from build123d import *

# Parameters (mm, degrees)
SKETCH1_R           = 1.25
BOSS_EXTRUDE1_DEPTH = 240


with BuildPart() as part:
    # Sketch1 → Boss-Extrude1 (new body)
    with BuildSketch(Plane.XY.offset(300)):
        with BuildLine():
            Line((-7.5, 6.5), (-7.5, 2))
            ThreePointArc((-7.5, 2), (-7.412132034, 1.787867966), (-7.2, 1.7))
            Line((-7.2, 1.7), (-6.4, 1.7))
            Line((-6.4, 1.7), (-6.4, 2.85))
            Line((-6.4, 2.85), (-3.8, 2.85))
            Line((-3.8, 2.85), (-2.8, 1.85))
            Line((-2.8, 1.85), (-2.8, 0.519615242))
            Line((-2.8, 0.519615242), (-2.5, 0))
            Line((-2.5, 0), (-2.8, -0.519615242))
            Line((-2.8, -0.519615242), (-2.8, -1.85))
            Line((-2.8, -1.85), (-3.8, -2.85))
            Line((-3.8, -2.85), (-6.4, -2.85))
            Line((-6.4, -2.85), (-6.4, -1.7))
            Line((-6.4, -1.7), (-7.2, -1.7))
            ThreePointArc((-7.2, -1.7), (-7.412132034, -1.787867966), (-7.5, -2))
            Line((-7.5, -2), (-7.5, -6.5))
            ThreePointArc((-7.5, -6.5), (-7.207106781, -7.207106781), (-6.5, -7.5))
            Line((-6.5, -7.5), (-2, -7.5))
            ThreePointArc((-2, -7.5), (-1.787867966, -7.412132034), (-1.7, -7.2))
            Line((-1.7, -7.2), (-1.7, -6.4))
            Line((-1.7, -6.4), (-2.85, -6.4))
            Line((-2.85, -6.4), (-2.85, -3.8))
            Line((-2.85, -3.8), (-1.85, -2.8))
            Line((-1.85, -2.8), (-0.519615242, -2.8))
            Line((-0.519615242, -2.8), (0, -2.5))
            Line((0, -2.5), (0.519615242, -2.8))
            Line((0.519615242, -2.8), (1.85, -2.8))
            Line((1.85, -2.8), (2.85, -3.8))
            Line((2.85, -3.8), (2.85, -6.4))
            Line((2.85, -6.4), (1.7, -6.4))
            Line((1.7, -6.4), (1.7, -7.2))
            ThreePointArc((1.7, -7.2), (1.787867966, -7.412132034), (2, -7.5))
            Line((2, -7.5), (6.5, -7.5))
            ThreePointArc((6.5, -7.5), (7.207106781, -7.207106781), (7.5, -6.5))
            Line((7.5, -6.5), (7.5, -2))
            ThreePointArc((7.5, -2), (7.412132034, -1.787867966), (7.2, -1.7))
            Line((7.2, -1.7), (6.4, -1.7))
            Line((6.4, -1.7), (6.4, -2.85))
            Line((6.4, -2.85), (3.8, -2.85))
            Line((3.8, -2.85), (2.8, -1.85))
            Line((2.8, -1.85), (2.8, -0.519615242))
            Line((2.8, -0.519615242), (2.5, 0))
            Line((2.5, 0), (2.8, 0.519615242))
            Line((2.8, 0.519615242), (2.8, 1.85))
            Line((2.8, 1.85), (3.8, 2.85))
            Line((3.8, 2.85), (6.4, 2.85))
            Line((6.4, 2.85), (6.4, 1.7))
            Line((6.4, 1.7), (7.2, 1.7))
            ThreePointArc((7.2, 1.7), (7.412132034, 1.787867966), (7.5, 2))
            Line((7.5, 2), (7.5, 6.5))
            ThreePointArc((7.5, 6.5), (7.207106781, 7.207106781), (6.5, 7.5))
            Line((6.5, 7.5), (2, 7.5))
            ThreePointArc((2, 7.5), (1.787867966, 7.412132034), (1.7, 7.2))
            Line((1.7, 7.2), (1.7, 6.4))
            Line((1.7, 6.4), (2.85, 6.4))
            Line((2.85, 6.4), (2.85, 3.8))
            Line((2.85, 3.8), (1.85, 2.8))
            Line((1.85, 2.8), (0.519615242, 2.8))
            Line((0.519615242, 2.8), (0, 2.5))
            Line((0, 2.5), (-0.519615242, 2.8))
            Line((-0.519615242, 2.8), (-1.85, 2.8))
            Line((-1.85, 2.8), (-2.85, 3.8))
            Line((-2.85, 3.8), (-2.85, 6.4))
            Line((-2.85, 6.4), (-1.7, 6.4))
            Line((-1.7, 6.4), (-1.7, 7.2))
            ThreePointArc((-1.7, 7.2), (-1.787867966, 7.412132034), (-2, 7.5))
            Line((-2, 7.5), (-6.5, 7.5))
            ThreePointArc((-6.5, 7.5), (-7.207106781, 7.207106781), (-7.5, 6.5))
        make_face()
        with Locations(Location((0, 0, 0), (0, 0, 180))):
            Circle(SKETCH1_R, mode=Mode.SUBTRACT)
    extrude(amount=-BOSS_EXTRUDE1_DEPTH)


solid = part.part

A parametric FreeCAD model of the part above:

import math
import FreeCAD as App
import Part
import Sketcher
from FreeCAD import Vector
Q = App.Units.Quantity

doc = App.newDocument("Part")
body = doc.addObject("PartDesign::Body", "Body")

sketch1 = doc.addObject("Sketcher::SketchObject", "Sketch")
body.addObject(sketch1)
sketch1.AttachmentSupport = (doc.XY_Plane, [""])
sketch1.MapMode = "FlatFace"
sketch1.AttachmentOffset = App.Placement(Vector(0, 0, 300), App.Rotation())
sketch1.addGeometry([
    Part.LineSegment(Vector(-7.5, 6.5, 0), Vector(-7.5, 2, 0)),
    Part.ArcOfCircle(Part.Circle(Vector(-7.2, 2, 0), Vector(0, 0, 1), 0.3), math.radians(-180), math.radians(-90)),
    Part.LineSegment(Vector(-7.2, 1.7, 0), Vector(-6.4, 1.7, 0)),
    Part.LineSegment(Vector(-6.4, 1.7, 0), Vector(-6.4, 2.85, 0)),
    Part.LineSegment(Vector(-6.4, 2.85, 0), Vector(-3.8, 2.85, 0)),
    Part.LineSegment(Vector(-3.8, 2.85, 0), Vector(-2.8, 1.85, 0)),
    Part.LineSegment(Vector(-2.8, 1.85, 0), Vector(-2.8, 0.52, 0)),
    Part.LineSegment(Vector(-2.8, 0.52, 0), Vector(-2.5, 0, 0)),
    Part.LineSegment(Vector(-2.5, 0, 0), Vector(-2.8, -0.52, 0)),
    Part.LineSegment(Vector(-2.8, -0.52, 0), Vector(-2.8, -1.85, 0)),
    Part.LineSegment(Vector(-2.8, -1.85, 0), Vector(-3.8, -2.85, 0)),
    Part.LineSegment(Vector(-3.8, -2.85, 0), Vector(-6.4, -2.85, 0)),
    Part.LineSegment(Vector(-6.4, -2.85, 0), Vector(-6.4, -1.7, 0)),
    Part.LineSegment(Vector(-6.4, -1.7, 0), Vector(-7.2, -1.7, 0)),
    Part.ArcOfCircle(Part.Circle(Vector(-7.2, -2, 0), Vector(0, 0, 1), 0.3), math.radians(90), math.radians(180)),
    Part.LineSegment(Vector(-7.5, -2, 0), Vector(-7.5, -6.5, 0)),
    Part.ArcOfCircle(Part.Circle(Vector(-6.5, -6.5, 0), Vector(0, 0, 1), 1), math.radians(-180), math.radians(-90)),
    Part.LineSegment(Vector(-6.5, -7.5, 0), Vector(-2, -7.5, 0)),
    Part.ArcOfCircle(Part.Circle(Vector(-2, -7.2, 0), Vector(0, 0, 1), 0.3), math.radians(-90), math.radians(0)),
    Part.LineSegment(Vector(-1.7, -7.2, 0), Vector(-1.7, -6.4, 0)),
    Part.LineSegment(Vector(-1.7, -6.4, 0), Vector(-2.85, -6.4, 0)),
    Part.LineSegment(Vector(-2.85, -6.4, 0), Vector(-2.85, -3.8, 0)),
    Part.LineSegment(Vector(-2.85, -3.8, 0), Vector(-1.85, -2.8, 0)),
    Part.LineSegment(Vector(-1.85, -2.8, 0), Vector(-0.52, -2.8, 0)),
    Part.LineSegment(Vector(-0.52, -2.8, 0), Vector(0, -2.5, 0)),
    Part.LineSegment(Vector(0, -2.5, 0), Vector(0.52, -2.8, 0)),
    Part.LineSegment(Vector(0.52, -2.8, 0), Vector(1.85, -2.8, 0)),
    Part.LineSegment(Vector(1.85, -2.8, 0), Vector(2.85, -3.8, 0)),
    Part.LineSegment(Vector(2.85, -3.8, 0), Vector(2.85, -6.4, 0)),
    Part.LineSegment(Vector(2.85, -6.4, 0), Vector(1.7, -6.4, 0)),
    Part.LineSegment(Vector(1.7, -6.4, 0), Vector(1.7, -7.2, 0)),
    Part.ArcOfCircle(Part.Circle(Vector(2, -7.2, 0), Vector(0, 0, 1), 0.3), math.radians(-180), math.radians(-90)),
    Part.LineSegment(Vector(2, -7.5, 0), Vector(6.5, -7.5, 0)),
    Part.ArcOfCircle(Part.Circle(Vector(6.5, -6.5, 0), Vector(0, 0, 1), 1), math.radians(-90), math.radians(0)),
    Part.LineSegment(Vector(7.5, -6.5, 0), Vector(7.5, -2, 0)),
    Part.ArcOfCircle(Part.Circle(Vector(7.2, -2, 0), Vector(0, 0, 1), 0.3), math.radians(0), math.radians(90)),
    Part.LineSegment(Vector(7.2, -1.7, 0), Vector(6.4, -1.7, 0)),
    Part.LineSegment(Vector(6.4, -1.7, 0), Vector(6.4, -2.85, 0)),
    Part.LineSegment(Vector(6.4, -2.85, 0), Vector(3.8, -2.85, 0)),
    Part.LineSegment(Vector(3.8, -2.85, 0), Vector(2.8, -1.85, 0)),
    Part.LineSegment(Vector(2.8, -1.85, 0), Vector(2.8, -0.52, 0)),
    Part.LineSegment(Vector(2.8, -0.52, 0), Vector(2.5, 0, 0)),
    Part.LineSegment(Vector(2.5, 0, 0), Vector(2.8, 0.52, 0)),
    Part.LineSegment(Vector(2.8, 0.52, 0), Vector(2.8, 1.85, 0)),
    Part.LineSegment(Vector(2.8, 1.85, 0), Vector(3.8, 2.85, 0)),
    Part.LineSegment(Vector(3.8, 2.85, 0), Vector(6.4, 2.85, 0)),
    Part.LineSegment(Vector(6.4, 2.85, 0), Vector(6.4, 1.7, 0)),
    Part.LineSegment(Vector(6.4, 1.7, 0), Vector(7.2, 1.7, 0)),
    Part.ArcOfCircle(Part.Circle(Vector(7.2, 2, 0), Vector(0, 0, 1), 0.3), math.radians(-90), math.radians(0)),
    Part.LineSegment(Vector(7.5, 2, 0), Vector(7.5, 6.5, 0)),
    Part.ArcOfCircle(Part.Circle(Vector(6.5, 6.5, 0), Vector(0, 0, 1), 1), math.radians(0), math.radians(90)),
    Part.LineSegment(Vector(6.5, 7.5, 0), Vector(2, 7.5, 0)),
    Part.ArcOfCircle(Part.Circle(Vector(2, 7.2, 0), Vector(0, 0, 1), 0.3), math.radians(90), math.radians(180)),
    Part.LineSegment(Vector(1.7, 7.2, 0), Vector(1.7, 6.4, 0)),
    Part.LineSegment(Vector(1.7, 6.4, 0), Vector(2.85, 6.4, 0)),
    Part.LineSegment(Vector(2.85, 6.4, 0), Vector(2.85, 3.8, 0)),
    Part.LineSegment(Vector(2.85, 3.8, 0), Vector(1.85, 2.8, 0)),
    Part.LineSegment(Vector(1.85, 2.8, 0), Vector(0.52, 2.8, 0)),
    Part.LineSegment(Vector(0.52, 2.8, 0), Vector(0, 2.5, 0)),
    Part.LineSegment(Vector(0, 2.5, 0), Vector(-0.52, 2.8, 0)),
    Part.LineSegment(Vector(-0.52, 2.8, 0), Vector(-1.85, 2.8, 0)),
    Part.LineSegment(Vector(-1.85, 2.8, 0), Vector(-2.85, 3.8, 0)),
    Part.LineSegment(Vector(-2.85, 3.8, 0), Vector(-2.85, 6.4, 0)),
    Part.LineSegment(Vector(-2.85, 6.4, 0), Vector(-1.7, 6.4, 0)),
    Part.LineSegment(Vector(-1.7, 6.4, 0), Vector(-1.7, 7.2, 0)),
    Part.ArcOfCircle(Part.Circle(Vector(-2, 7.2, 0), Vector(0, 0, 1), 0.3), math.radians(0), math.radians(90)),
    Part.LineSegment(Vector(-2, 7.5, 0), Vector(-6.5, 7.5, 0)),
    Part.ArcOfCircle(Part.Circle(Vector(-6.5, 6.5, 0), Vector(0, 0, 1), 1), math.radians(90), math.radians(180)),
    Part.Circle(Vector(0, 0, 0), Vector(0, 0, 1), 1.25),
], False)
sketch1.addConstraint([
    Sketcher.Constraint("Tangent", 0, 2, 1, 1),
    Sketcher.Constraint("Tangent", 1, 2, 2, 1),
    Sketcher.Constraint("Coincident", 2, 2, 3, 1),
    Sketcher.Constraint("Coincident", 3, 2, 4, 1),
    Sketcher.Constraint("Coincident", 4, 2, 5, 1),
    Sketcher.Constraint("Coincident", 5, 2, 6, 1),
    Sketcher.Constraint("Coincident", 6, 2, 7, 1),
    Sketcher.Constraint("Coincident", 7, 2, 8, 1),
    Sketcher.Constraint("Coincident", 8, 2, 9, 1),
    Sketcher.Constraint("Coincident", 9, 2, 10, 1),
    Sketcher.Constraint("Coincident", 10, 2, 11, 1),
    Sketcher.Constraint("Coincident", 11, 2, 12, 1),
    Sketcher.Constraint("Coincident", 12, 2, 13, 1),
    Sketcher.Constraint("Tangent", 13, 2, 14, 1),
    Sketcher.Constraint("Tangent", 14, 2, 15, 1),
    Sketcher.Constraint("Tangent", 15, 2, 16, 1),
    Sketcher.Constraint("Tangent", 16, 2, 17, 1),
    Sketcher.Constraint("Tangent", 17, 2, 18, 1),
    Sketcher.Constraint("Tangent", 18, 2, 19, 1),
    Sketcher.Constraint("Coincident", 19, 2, 20, 1),
    Sketcher.Constraint("Coincident", 20, 2, 21, 1),
    Sketcher.Constraint("Coincident", 21, 2, 22, 1),
    Sketcher.Constraint("Coincident", 22, 2, 23, 1),
    Sketcher.Constraint("Coincident", 23, 2, 24, 1),
    Sketcher.Constraint("Coincident", 24, 2, 25, 1),
    Sketcher.Constraint("Coincident", 25, 2, 26, 1),
    Sketcher.Constraint("Coincident", 26, 2, 27, 1),
    Sketcher.Constraint("Coincident", 27, 2, 28, 1),
    Sketcher.Constraint("Coincident", 28, 2, 29, 1),
    Sketcher.Constraint("Coincident", 29, 2, 30, 1),
    Sketcher.Constraint("Tangent", 30, 2, 31, 1),
    Sketcher.Constraint("Tangent", 31, 2, 32, 1),
    Sketcher.Constraint("Tangent", 32, 2, 33, 1),
    Sketcher.Constraint("Tangent", 33, 2, 34, 1),
    Sketcher.Constraint("Tangent", 34, 2, 35, 1),
    Sketcher.Constraint("Tangent", 35, 2, 36, 1),
    Sketcher.Constraint("Coincident", 36, 2, 37, 1),
    Sketcher.Constraint("Coincident", 37, 2, 38, 1),
    Sketcher.Constraint("Coincident", 38, 2, 39, 1),
    Sketcher.Constraint("Coincident", 39, 2, 40, 1),
    Sketcher.Constraint("Coincident", 40, 2, 41, 1),
    Sketcher.Constraint("Coincident", 41, 2, 42, 1),
    Sketcher.Constraint("Coincident", 42, 2, 43, 1),
    Sketcher.Constraint("Coincident", 43, 2, 44, 1),
    Sketcher.Constraint("Coincident", 44, 2, 45, 1),
    Sketcher.Constraint("Coincident", 45, 2, 46, 1),
    Sketcher.Constraint("Coincident", 46, 2, 47, 1),
    Sketcher.Constraint("Tangent", 47, 2, 48, 1),
    Sketcher.Constraint("Tangent", 48, 2, 49, 1),
    Sketcher.Constraint("Tangent", 49, 2, 50, 1),
    Sketcher.Constraint("Tangent", 50, 2, 51, 1),
    Sketcher.Constraint("Tangent", 51, 2, 52, 1),
    Sketcher.Constraint("Tangent", 52, 2, 53, 1),
    Sketcher.Constraint("Coincident", 53, 2, 54, 1),
    Sketcher.Constraint("Coincident", 54, 2, 55, 1),
    Sketcher.Constraint("Coincident", 55, 2, 56, 1),
    Sketcher.Constraint("Coincident", 56, 2, 57, 1),
    Sketcher.Constraint("Coincident", 57, 2, 58, 1),
    Sketcher.Constraint("Coincident", 58, 2, 59, 1),
    Sketcher.Constraint("Coincident", 59, 2, 60, 1),
    Sketcher.Constraint("Coincident", 60, 2, 61, 1),
    Sketcher.Constraint("Coincident", 61, 2, 62, 1),
    Sketcher.Constraint("Coincident", 62, 2, 63, 1),
    Sketcher.Constraint("Coincident", 63, 2, 64, 1),
    Sketcher.Constraint("Tangent", 64, 2, 65, 1),
    Sketcher.Constraint("Tangent", 65, 2, 66, 1),
    Sketcher.Constraint("Tangent", 66, 2, 67, 1),
    Sketcher.Constraint("Tangent", 67, 2, 0, 1),
    Sketcher.Constraint("Vertical", 0),
    Sketcher.Constraint("Horizontal", 2),
    Sketcher.Constraint("Vertical", 3),
    Sketcher.Constraint("Horizontal", 4),
    Sketcher.Constraint("Vertical", 6),
    Sketcher.Constraint("Vertical", 9),
    Sketcher.Constraint("Horizontal", 11),
    Sketcher.Constraint("Vertical", 12),
    Sketcher.Constraint("Horizontal", 13),
    Sketcher.Constraint("Vertical", 15),
    Sketcher.Constraint("Horizontal", 17),
    Sketcher.Constraint("Vertical", 19),
    Sketcher.Constraint("Horizontal", 20),
    Sketcher.Constraint("Vertical", 21),
    Sketcher.Constraint("Horizontal", 23),
    Sketcher.Constraint("Horizontal", 26),
    Sketcher.Constraint("Vertical", 28),
    Sketcher.Constraint("Horizontal", 29),
    Sketcher.Constraint("Vertical", 30),
    Sketcher.Constraint("Horizontal", 32),
    Sketcher.Constraint("Vertical", 34),
    Sketcher.Constraint("Horizontal", 36),
    Sketcher.Constraint("Vertical", 37),
    Sketcher.Constraint("Horizontal", 38),
    Sketcher.Constraint("Vertical", 40),
    Sketcher.Constraint("Vertical", 43),
    Sketcher.Constraint("Horizontal", 45),
    Sketcher.Constraint("Vertical", 46),
    Sketcher.Constraint("Horizontal", 47),
    Sketcher.Constraint("Vertical", 49),
    Sketcher.Constraint("Horizontal", 51),
    Sketcher.Constraint("Vertical", 53),
    Sketcher.Constraint("Horizontal", 54),
    Sketcher.Constraint("Vertical", 55),
    Sketcher.Constraint("Horizontal", 57),
    Sketcher.Constraint("Horizontal", 60),
    Sketcher.Constraint("Vertical", 62),
    Sketcher.Constraint("Horizontal", 63),
    Sketcher.Constraint("Vertical", 64),
    Sketcher.Constraint("Horizontal", 66),
    Sketcher.Constraint("Coincident", 68, 3, -1, 1),
    Sketcher.Constraint("Equal", 1, 14),
    Sketcher.Constraint("Equal", 14, 18),
    Sketcher.Constraint("Equal", 18, 31),
    Sketcher.Constraint("Equal", 16, 33),
    Sketcher.Constraint("Equal", 31, 35),
    Sketcher.Constraint("Equal", 35, 48),
    Sketcher.Constraint("Equal", 33, 50),
    Sketcher.Constraint("Equal", 48, 52),
    Sketcher.Constraint("Equal", 52, 65),
    Sketcher.Constraint("Equal", 50, 67),
    Sketcher.Constraint("Symmetric", 1, 3, 35, 3, -1, 1),
    Sketcher.Constraint("Symmetric", 14, 3, 48, 3, -1, 1),
    Sketcher.Constraint("Symmetric", 18, 3, 52, 3, -1, 1),
    Sketcher.Constraint("Symmetric", 31, 3, 65, 3, -1, 1),
    Sketcher.Constraint("Symmetric", 3, 2, 37, 2, -1, 1),
    Sketcher.Constraint("Symmetric", 5, 2, 39, 2, -1, 1),
    Sketcher.Constraint("Symmetric", 7, 2, 41, 2, -1, 1),
    Sketcher.Constraint("Symmetric", 8, 2, 42, 2, -1, 1),
    Sketcher.Constraint("Symmetric", 10, 2, 44, 2, -1, 1),
    Sketcher.Constraint("Symmetric", 20, 2, 54, 2, -1, 1),
    Sketcher.Constraint("Symmetric", 22, 2, 56, 2, -1, 1),
    Sketcher.Constraint("Symmetric", 24, 2, 58, 2, -1, 1),
    Sketcher.Constraint("Symmetric", 25, 2, 59, 2, -1, 1),
    Sketcher.Constraint("Symmetric", 27, 2, 61, 2, -1, 1),
    Sketcher.Constraint("Symmetric", 18, 3, 31, 3, -2),
    Sketcher.Constraint("Symmetric", 14, 3, 35, 3, -2),
    Sketcher.Constraint("Symmetric", 23, 2, 25, 2, -2),
    Sketcher.Constraint("Symmetric", 21, 2, 27, 2, -2),
    Sketcher.Constraint("Symmetric", 11, 2, 37, 2, -2),
    Sketcher.Constraint("Symmetric", 9, 2, 39, 2, -2),
    Sketcher.Constraint("PointOnObject", 7, 2, -1),
    Sketcher.Constraint("PointOnObject", 24, 2, -2),
    Sketcher.Constraint("Perpendicular", 5, 10),
    Sketcher.Constraint("Parallel", 10, 22),
    Sketcher.Constraint("Perpendicular", 7, 24),
    Sketcher.Constraint("Perpendicular", 8, 25),
    Sketcher.Constraint("Perpendicular", 22, 27),
    Sketcher.Constraint("Parallel", 27, 39),
    Sketcher.Constraint("Perpendicular", 24, 41),
    Sketcher.Constraint("Perpendicular", 39, 44),
    Sketcher.Constraint("Parallel", 44, 56),
    Sketcher.Constraint("Perpendicular", 41, 58),
    Sketcher.Constraint("Perpendicular", 56, 61),
    Sketcher.Constraint("Horizontal", 20, 2, 28, 2),
    Sketcher.Constraint("Horizontal", 54, 2, 62, 2),
    Sketcher.Constraint("Vertical", 4, 2, 10, 2),
    Sketcher.Constraint("Vertical", 37, 2, 45, 2),
    Sketcher.Constraint("Equal", 66, 0),
    Sketcher.Constraint("Equal", 63, 3),
    Sketcher.Constraint("Equal", 60, 6),
    Sketcher.Constraint("Equal", 47, 19),
    Sketcher.Constraint("Equal", 45, 21),
    Sketcher.Constraint("Equal", 10, 22),
    Sketcher.Constraint("Equal", 8, 24),
    Sketcher.Constraint("Radius", 16, Q("1 mm")),
    Sketcher.Constraint("Diameter", 68, Q("2.5 mm")),
    Sketcher.Constraint("Radius", 1, Q("0.3 mm")),
    Sketcher.Constraint("Angle", 7, Q("-60 deg")),
    Sketcher.Constraint("DistanceX", 2, 1, 2, 2, Q("0.8 mm")),
    Sketcher.Constraint("DistanceX", 4, 1, 4, 2, Q("2.6 mm")),
    Sketcher.Constraint("DistanceX", 17, 1, 17, 2, Q("4.5 mm")),
    Sketcher.Constraint("DistanceY", -1, 1, 1, 3, Q("2 mm")),
    Sketcher.Constraint("Distance", 7, Q("0.6 mm")),
    Sketcher.Constraint("DistanceX", 20, 2, 20, 1, Q("1.15 mm")),
    Sketcher.Constraint("DistanceX", 5, 2, -1, 1, Q("2.8 mm")),
])
pad1 = doc.addObject("PartDesign::Pad", "Pad")
body.addObject(pad1)
pad1.Profile = sketch1
pad1.Length = 240
pad1.Reversed = True

doc.recompute()
